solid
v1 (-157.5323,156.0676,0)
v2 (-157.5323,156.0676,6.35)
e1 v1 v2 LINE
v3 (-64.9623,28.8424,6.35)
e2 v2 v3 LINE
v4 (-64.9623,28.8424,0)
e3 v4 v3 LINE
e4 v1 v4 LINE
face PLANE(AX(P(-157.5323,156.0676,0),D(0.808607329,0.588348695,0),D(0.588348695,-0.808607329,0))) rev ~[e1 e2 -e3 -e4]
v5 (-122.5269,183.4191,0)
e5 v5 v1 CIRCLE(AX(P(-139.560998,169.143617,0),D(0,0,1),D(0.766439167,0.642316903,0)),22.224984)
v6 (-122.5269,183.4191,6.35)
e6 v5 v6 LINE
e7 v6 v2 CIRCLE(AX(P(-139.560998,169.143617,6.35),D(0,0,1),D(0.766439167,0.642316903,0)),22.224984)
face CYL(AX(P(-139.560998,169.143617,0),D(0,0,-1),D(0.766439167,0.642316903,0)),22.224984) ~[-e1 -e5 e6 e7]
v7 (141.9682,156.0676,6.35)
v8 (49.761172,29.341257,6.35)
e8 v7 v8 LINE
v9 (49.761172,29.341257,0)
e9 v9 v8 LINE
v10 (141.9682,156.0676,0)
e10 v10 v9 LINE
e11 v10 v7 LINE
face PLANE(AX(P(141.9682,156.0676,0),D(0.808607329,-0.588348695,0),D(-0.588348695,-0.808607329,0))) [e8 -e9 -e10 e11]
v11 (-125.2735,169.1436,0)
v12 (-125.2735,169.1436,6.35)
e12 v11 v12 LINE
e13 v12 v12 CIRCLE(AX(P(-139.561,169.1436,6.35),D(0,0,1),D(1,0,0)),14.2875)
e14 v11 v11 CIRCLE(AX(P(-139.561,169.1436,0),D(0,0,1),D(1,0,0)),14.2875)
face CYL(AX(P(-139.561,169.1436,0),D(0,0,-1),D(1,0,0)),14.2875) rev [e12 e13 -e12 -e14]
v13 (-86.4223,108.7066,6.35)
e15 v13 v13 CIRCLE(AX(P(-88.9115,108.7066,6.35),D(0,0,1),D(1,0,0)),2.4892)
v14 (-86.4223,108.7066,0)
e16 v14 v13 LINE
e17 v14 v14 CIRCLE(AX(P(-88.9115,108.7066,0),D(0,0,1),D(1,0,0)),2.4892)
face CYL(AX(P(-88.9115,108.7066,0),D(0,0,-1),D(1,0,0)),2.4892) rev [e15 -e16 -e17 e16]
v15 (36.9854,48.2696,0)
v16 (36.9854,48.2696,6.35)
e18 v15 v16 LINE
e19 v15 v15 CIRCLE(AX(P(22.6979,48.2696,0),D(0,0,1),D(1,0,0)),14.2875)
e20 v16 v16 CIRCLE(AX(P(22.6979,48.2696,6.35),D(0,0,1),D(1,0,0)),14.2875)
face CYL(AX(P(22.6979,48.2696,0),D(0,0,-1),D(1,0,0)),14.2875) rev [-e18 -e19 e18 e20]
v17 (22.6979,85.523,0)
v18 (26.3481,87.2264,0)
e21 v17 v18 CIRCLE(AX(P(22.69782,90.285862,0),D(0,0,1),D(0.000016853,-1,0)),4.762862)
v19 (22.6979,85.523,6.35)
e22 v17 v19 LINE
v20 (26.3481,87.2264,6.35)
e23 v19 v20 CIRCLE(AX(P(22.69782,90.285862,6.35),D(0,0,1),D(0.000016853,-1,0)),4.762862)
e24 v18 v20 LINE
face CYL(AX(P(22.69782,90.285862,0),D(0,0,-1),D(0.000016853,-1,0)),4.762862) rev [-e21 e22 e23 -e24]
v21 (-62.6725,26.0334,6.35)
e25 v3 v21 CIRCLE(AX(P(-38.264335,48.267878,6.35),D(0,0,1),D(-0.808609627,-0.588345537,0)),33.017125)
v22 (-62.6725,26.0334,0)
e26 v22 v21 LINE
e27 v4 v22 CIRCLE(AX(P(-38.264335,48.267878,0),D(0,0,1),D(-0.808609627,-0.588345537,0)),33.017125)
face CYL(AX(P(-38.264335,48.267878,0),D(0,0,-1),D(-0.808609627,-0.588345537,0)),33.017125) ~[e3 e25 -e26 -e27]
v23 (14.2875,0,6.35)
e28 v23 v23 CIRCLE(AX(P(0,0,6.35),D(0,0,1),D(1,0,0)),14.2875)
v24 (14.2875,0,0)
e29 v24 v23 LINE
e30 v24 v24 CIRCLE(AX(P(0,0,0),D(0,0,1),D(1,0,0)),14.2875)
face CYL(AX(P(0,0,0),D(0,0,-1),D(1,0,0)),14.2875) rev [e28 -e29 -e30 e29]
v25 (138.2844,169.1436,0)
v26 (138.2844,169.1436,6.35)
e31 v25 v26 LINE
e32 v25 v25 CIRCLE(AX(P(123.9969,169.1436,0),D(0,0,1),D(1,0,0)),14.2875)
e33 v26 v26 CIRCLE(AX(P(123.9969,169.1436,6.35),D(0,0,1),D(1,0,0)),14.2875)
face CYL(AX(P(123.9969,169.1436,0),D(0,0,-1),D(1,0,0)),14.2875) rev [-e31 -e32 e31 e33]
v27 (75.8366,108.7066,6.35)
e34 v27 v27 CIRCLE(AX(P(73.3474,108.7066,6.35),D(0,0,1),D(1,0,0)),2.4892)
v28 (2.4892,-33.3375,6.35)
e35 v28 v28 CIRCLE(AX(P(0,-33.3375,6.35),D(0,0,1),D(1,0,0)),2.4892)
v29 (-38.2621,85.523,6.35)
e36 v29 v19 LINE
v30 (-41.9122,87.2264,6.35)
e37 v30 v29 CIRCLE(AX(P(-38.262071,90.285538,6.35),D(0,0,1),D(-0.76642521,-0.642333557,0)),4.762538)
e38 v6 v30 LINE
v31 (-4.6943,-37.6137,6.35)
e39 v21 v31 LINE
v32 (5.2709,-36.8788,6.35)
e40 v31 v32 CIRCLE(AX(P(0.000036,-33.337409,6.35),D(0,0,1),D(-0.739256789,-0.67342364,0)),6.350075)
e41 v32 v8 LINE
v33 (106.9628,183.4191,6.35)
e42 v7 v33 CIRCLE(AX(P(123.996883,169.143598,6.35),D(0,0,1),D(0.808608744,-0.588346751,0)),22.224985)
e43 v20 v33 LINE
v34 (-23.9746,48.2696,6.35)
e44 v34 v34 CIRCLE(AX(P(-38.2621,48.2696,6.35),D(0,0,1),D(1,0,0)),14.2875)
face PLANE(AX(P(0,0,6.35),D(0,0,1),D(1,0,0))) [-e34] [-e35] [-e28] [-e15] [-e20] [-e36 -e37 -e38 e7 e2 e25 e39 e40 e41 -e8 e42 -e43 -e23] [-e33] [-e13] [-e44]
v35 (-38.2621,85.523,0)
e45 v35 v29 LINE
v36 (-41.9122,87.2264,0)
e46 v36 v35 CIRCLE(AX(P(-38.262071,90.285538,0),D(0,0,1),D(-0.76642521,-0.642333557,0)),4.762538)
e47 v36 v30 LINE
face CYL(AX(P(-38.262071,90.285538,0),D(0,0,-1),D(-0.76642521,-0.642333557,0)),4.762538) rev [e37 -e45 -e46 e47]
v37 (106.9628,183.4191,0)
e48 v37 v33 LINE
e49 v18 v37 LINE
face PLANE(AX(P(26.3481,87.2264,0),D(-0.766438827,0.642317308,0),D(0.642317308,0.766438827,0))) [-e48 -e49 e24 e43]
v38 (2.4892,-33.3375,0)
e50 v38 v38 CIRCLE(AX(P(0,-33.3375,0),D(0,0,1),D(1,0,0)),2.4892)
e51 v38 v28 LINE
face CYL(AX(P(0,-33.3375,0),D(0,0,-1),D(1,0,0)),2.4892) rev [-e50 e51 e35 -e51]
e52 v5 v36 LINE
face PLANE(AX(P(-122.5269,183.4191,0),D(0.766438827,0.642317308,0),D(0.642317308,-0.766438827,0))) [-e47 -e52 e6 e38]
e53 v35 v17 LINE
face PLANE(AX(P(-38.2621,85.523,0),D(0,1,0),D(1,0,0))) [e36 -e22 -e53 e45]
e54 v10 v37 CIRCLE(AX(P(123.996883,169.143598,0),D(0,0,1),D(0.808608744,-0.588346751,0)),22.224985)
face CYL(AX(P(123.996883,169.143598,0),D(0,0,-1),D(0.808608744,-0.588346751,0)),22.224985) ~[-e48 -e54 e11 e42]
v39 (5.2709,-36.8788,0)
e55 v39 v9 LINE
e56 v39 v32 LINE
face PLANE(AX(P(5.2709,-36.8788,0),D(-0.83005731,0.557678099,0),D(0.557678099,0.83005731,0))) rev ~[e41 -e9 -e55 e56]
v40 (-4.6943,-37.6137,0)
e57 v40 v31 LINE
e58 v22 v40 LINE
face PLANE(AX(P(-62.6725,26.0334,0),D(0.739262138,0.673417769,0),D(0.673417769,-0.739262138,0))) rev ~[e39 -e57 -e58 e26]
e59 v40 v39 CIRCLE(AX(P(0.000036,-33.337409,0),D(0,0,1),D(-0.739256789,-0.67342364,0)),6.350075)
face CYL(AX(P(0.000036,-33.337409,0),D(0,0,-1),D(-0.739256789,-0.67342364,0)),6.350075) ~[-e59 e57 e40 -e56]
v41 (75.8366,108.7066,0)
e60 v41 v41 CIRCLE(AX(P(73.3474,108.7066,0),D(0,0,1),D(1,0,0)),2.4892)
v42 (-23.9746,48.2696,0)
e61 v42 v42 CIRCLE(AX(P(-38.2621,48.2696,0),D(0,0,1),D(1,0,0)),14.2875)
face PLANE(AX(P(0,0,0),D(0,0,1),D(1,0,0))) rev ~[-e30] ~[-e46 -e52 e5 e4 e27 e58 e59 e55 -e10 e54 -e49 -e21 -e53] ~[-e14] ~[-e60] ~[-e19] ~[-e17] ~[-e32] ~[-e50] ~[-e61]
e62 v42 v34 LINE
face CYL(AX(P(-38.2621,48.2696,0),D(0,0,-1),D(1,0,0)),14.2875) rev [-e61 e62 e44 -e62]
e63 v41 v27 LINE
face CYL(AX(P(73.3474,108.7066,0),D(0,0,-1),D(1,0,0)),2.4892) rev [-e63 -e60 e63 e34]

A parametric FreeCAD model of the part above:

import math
import FreeCAD as App
import Part
import Sketcher
from FreeCAD import Vector
Q = App.Units.Quantity

doc = App.newDocument("Part")
body = doc.addObject("PartDesign::Body", "Body")

sketch1 = body.newObject("Sketcher::SketchObject", "Sketch")
sketch1.AttachmentSupport = (doc.getObject("XY_Plane"), [""])
sketch1.MapMode = "FlatFace"
sketch1.addGeometry(Part.LineSegment(Vector(-41.9122, 87.2264, 0), Vector(-122.5269, 183.4191, 0)), False)
sketch1.addGeometry(Part.ArcOfCircle(Part.Circle(Vector(-139.561, 169.1436, 0), Vector(0, 0, 1), 22.224996), math.radians(39.964834), math.radians(216.039807)), False)
sketch1.addGeometry(Part.LineSegment(Vector(-157.5323, 156.0676, 0), Vector(-64.9623, 28.8424, 0)), False)
sketch1.addGeometry(Part.ArcOfCircle(Part.Circle(Vector(-38.264335, 48.267878, 0), Vector(0, 0, 1), 33.017125), math.radians(-143.96031), math.radians(-137.668225)), False)
sketch1.addGeometry(Part.LineSegment(Vector(-62.6725, 26.0334, 0), Vector(-4.6943, -37.6137, 0)), False)
sketch1.addGeometry(Part.ArcOfCircle(Part.Circle(Vector(0, -33.3375, 0), Vector(0, 0, 1), 6.35), math.radians(-137.668529), math.radians(-33.895523)), False)
sketch1.addGeometry(Part.LineSegment(Vector(5.2709, -36.8788, 0), Vector(49.761172, 29.341257, 0)), False)
sketch1.addGeometry(Part.LineSegment(Vector(49.761172, 29.341257, 0), Vector(141.9682, 156.0676, 0)), False)
sketch1.addGeometry(Part.ArcOfCircle(Part.Circle(Vector(123.9969, 169.1436, 0), Vector(0, 0, 1), 22.224972), math.radians(-36.039807), math.radians(140.035166)), False)
sketch1.addGeometry(Part.LineSegment(Vector(106.9628, 183.4191, 0), Vector(26.3481, 87.2264, 0)), False)
sketch1.addGeometry(Part.ArcOfCircle(Part.Circle(Vector(22.6979, 90.2855, 0), Vector(0, 0, 1), 4.7625), math.radians(-90), math.radians(-39.965151)), False)
sketch1.addGeometry(Part.LineSegment(Vector(22.6979, 85.523, 0), Vector(-38.2621, 85.523, 0)), False)
sketch1.addGeometry(Part.ArcOfCircle(Part.Circle(Vector(-38.2621, 90.2855, 0), Vector(0, 0, 1), 4.762491), math.radians(-140.034077), math.radians(-90)), False)
sketch1.addGeometry(Part.Circle(Vector(-38.2621, 48.2696, 0), Vector(0, 0, 1), 14.2875), False)
sketch1.addGeometry(Part.Circle(Vector(0, -33.3375, 0), Vector(0, 0, 1), 2.4892), False)
sketch1.addGeometry(Part.Circle(Vector(0, 0, 0), Vector(0, 0, 1), 14.2875), False)
sketch1.addGeometry(Part.Circle(Vector(-139.561, 169.1436, 0), Vector(0, 0, 1), 14.2875), False)
sketch1.addGeometry(Part.Circle(Vector(73.3474, 108.7066, 0), Vector(0, 0, 1), 2.4892), False)
sketch1.addGeometry(Part.Circle(Vector(123.9969, 169.1436, 0), Vector(0, 0, 1), 14.2875), False)
sketch1.addGeometry(Part.Circle(Vector(22.6979, 48.2696, 0), Vector(0, 0, 1), 14.2875), False)
sketch1.addGeometry(Part.Circle(Vector(-88.9115, 108.7066, 0), Vector(0, 0, 1), 2.4892), False)
sketch1.addConstraint(Sketcher.Constraint("Tangent", 0, 2, 1, 1))
sketch1.addConstraint(Sketcher.Constraint("Tangent", 1, 2, 2, 1))
sketch1.addConstraint(Sketcher.Constraint("Tangent", 2, 2, 3, 1))
sketch1.addConstraint(Sketcher.Constraint("Tangent", 3, 2, 4, 1))
sketch1.addConstraint(Sketcher.Constraint("Tangent", 4, 2, 5, 1))
sketch1.addConstraint(Sketcher.Constraint("Tangent", 5, 2, 6, 1))
sketch1.addConstraint(Sketcher.Constraint("Coincident", 6, 2, 7, 1))
sketch1.addConstraint(Sketcher.Constraint("Tangent", 7, 2, 8, 1))
sketch1.addConstraint(Sketcher.Constraint("Tangent", 8, 2, 9, 1))
sketch1.addConstraint(Sketcher.Constraint("Tangent", 9, 2, 10, 2))
sketch1.addConstraint(Sketcher.Constraint("Tangent", 10, 1, 11, 1))
sketch1.addConstraint(Sketcher.Constraint("Tangent", 11, 2, 12, 2))
sketch1.addConstraint(Sketcher.Constraint("Tangent", 12, 1, 0, 1))
sketch1.addConstraint(Sketcher.Constraint("Horizontal", 11))
sketch1.addConstraint(Sketcher.Constraint("Coincident", 15, 3, -1, 1))
sketch1.addConstraint(Sketcher.Constraint("Coincident", 14, 3, 5, 3))
sketch1.addConstraint(Sketcher.Constraint("Coincident", 16, 3, 1, 3))
sketch1.addConstraint(Sketcher.Constraint("Coincident", 18, 3, 8, 3))
sketch1.addConstraint(Sketcher.Constraint("Equal", 1, 8))
sketch1.addConstraint(Sketcher.Constraint("Equal", 10, 12))
sketch1.addConstraint(Sketcher.Constraint("Equal", 13, 15))
sketch1.addConstraint(Sketcher.Constraint("Equal", 15, 16))
sketch1.addConstraint(Sketcher.Constraint("Equal", 14, 17))
sketch1.addConstraint(Sketcher.Constraint("Equal", 16, 18))
sketch1.addConstraint(Sketcher.Constraint("Equal", 18, 19))
sketch1.addConstraint(Sketcher.Constraint("Equal", 17, 20))
sketch1.addConstraint(Sketcher.Constraint("PointOnObject", 5, 3, -2))
sketch1.addConstraint(Sketcher.Constraint("Horizontal", 1, 3, 8, 3))
sketch1.addConstraint(Sketcher.Constraint("Horizontal", 13, 3, 19, 3))
sketch1.addConstraint(Sketcher.Constraint("Horizontal", 17, 3, 20, 3))
sketch1.addConstraint(Sketcher.Constraint("Horizontal", 1, 2, 7, 2))
sketch1.addConstraint(Sketcher.Constraint("Horizontal", 0, 2, 8, 2))
sketch1.addConstraint(Sketcher.Constraint("Vertical", 12, 3, 13, 3))
sketch1.addConstraint(Sketcher.Constraint("Vertical", 10, 3, 19, 3))
sketch1.addConstraint(Sketcher.Constraint("Radius", 5, Q("0.25 in")))
sketch1.addConstraint(Sketcher.Constraint("Diameter", 13, Q("1.125 in")))
sketch1.addConstraint(Sketcher.Constraint("Diameter", 14, Q("0.196 in")))
sketch1.addConstraint(Sketcher.Constraint("DistanceX", 11, 2, 11, 1, Q("2.4 in")))
sketch1.addConstraint(Sketcher.Constraint("Radius", 1, Q("0.875 in")))
sketch1.addConstraint(Sketcher.Constraint("Radius", 10, Q("0.1875 in")))
sketch1.addConstraint(Sketcher.Constraint("Angle", 2, Q("-53.96 deg")))
sketch1.addConstraint(Sketcher.Constraint("Radius", 3, 33.0171))
sketch1.addConstraint(Sketcher.Constraint("DistanceY", 5, 3, -1, 1, Q("1.3125 in")))
sketch1.addConstraint(Sketcher.Constraint("DistanceY", -1, 1, 1, 3, Q("6.6592 in")))
sketch1.addConstraint(Sketcher.Constraint("DistanceY", -1, 1, 3, 3, Q("1.9003 in")))
sketch1.addConstraint(Sketcher.Constraint("DistanceX", -1, 1, 17, 3, Q("2.8877 in")))
sketch1.addConstraint(Sketcher.Constraint("DistanceX", 0, 2, -1, 1, Q("4.8239 in")))
sketch1.addConstraint(Sketcher.Constraint("DistanceX", -1, 1, 6, 2, Q("1.9591 in")))
sketch1.addConstraint(Sketcher.Constraint("DistanceX", -1, 1, 7, 2, Q("5.5893 in")))
sketch1.addConstraint(Sketcher.Constraint("DistanceY", -1, 1, 9, 2, Q("3.4341 in")))
sketch1.addConstraint(Sketcher.Constraint("DistanceY", 17, 3, 8, 3, Q("2.3794 in")))
sketch1.addConstraint(Sketcher.Constraint("DistanceY", 13, 3, 17, 3, Q("2.3794 in")))
sketch1.addConstraint(Sketcher.Constraint("DistanceX", 1, 2, 20, 3, Q("2.7016 in")))
pad1 = body.newObject("PartDesign::Pad", "Pad")
pad1.Profile = sketch1
pad1.Length = Q("0.25 in")

doc.recompute()
